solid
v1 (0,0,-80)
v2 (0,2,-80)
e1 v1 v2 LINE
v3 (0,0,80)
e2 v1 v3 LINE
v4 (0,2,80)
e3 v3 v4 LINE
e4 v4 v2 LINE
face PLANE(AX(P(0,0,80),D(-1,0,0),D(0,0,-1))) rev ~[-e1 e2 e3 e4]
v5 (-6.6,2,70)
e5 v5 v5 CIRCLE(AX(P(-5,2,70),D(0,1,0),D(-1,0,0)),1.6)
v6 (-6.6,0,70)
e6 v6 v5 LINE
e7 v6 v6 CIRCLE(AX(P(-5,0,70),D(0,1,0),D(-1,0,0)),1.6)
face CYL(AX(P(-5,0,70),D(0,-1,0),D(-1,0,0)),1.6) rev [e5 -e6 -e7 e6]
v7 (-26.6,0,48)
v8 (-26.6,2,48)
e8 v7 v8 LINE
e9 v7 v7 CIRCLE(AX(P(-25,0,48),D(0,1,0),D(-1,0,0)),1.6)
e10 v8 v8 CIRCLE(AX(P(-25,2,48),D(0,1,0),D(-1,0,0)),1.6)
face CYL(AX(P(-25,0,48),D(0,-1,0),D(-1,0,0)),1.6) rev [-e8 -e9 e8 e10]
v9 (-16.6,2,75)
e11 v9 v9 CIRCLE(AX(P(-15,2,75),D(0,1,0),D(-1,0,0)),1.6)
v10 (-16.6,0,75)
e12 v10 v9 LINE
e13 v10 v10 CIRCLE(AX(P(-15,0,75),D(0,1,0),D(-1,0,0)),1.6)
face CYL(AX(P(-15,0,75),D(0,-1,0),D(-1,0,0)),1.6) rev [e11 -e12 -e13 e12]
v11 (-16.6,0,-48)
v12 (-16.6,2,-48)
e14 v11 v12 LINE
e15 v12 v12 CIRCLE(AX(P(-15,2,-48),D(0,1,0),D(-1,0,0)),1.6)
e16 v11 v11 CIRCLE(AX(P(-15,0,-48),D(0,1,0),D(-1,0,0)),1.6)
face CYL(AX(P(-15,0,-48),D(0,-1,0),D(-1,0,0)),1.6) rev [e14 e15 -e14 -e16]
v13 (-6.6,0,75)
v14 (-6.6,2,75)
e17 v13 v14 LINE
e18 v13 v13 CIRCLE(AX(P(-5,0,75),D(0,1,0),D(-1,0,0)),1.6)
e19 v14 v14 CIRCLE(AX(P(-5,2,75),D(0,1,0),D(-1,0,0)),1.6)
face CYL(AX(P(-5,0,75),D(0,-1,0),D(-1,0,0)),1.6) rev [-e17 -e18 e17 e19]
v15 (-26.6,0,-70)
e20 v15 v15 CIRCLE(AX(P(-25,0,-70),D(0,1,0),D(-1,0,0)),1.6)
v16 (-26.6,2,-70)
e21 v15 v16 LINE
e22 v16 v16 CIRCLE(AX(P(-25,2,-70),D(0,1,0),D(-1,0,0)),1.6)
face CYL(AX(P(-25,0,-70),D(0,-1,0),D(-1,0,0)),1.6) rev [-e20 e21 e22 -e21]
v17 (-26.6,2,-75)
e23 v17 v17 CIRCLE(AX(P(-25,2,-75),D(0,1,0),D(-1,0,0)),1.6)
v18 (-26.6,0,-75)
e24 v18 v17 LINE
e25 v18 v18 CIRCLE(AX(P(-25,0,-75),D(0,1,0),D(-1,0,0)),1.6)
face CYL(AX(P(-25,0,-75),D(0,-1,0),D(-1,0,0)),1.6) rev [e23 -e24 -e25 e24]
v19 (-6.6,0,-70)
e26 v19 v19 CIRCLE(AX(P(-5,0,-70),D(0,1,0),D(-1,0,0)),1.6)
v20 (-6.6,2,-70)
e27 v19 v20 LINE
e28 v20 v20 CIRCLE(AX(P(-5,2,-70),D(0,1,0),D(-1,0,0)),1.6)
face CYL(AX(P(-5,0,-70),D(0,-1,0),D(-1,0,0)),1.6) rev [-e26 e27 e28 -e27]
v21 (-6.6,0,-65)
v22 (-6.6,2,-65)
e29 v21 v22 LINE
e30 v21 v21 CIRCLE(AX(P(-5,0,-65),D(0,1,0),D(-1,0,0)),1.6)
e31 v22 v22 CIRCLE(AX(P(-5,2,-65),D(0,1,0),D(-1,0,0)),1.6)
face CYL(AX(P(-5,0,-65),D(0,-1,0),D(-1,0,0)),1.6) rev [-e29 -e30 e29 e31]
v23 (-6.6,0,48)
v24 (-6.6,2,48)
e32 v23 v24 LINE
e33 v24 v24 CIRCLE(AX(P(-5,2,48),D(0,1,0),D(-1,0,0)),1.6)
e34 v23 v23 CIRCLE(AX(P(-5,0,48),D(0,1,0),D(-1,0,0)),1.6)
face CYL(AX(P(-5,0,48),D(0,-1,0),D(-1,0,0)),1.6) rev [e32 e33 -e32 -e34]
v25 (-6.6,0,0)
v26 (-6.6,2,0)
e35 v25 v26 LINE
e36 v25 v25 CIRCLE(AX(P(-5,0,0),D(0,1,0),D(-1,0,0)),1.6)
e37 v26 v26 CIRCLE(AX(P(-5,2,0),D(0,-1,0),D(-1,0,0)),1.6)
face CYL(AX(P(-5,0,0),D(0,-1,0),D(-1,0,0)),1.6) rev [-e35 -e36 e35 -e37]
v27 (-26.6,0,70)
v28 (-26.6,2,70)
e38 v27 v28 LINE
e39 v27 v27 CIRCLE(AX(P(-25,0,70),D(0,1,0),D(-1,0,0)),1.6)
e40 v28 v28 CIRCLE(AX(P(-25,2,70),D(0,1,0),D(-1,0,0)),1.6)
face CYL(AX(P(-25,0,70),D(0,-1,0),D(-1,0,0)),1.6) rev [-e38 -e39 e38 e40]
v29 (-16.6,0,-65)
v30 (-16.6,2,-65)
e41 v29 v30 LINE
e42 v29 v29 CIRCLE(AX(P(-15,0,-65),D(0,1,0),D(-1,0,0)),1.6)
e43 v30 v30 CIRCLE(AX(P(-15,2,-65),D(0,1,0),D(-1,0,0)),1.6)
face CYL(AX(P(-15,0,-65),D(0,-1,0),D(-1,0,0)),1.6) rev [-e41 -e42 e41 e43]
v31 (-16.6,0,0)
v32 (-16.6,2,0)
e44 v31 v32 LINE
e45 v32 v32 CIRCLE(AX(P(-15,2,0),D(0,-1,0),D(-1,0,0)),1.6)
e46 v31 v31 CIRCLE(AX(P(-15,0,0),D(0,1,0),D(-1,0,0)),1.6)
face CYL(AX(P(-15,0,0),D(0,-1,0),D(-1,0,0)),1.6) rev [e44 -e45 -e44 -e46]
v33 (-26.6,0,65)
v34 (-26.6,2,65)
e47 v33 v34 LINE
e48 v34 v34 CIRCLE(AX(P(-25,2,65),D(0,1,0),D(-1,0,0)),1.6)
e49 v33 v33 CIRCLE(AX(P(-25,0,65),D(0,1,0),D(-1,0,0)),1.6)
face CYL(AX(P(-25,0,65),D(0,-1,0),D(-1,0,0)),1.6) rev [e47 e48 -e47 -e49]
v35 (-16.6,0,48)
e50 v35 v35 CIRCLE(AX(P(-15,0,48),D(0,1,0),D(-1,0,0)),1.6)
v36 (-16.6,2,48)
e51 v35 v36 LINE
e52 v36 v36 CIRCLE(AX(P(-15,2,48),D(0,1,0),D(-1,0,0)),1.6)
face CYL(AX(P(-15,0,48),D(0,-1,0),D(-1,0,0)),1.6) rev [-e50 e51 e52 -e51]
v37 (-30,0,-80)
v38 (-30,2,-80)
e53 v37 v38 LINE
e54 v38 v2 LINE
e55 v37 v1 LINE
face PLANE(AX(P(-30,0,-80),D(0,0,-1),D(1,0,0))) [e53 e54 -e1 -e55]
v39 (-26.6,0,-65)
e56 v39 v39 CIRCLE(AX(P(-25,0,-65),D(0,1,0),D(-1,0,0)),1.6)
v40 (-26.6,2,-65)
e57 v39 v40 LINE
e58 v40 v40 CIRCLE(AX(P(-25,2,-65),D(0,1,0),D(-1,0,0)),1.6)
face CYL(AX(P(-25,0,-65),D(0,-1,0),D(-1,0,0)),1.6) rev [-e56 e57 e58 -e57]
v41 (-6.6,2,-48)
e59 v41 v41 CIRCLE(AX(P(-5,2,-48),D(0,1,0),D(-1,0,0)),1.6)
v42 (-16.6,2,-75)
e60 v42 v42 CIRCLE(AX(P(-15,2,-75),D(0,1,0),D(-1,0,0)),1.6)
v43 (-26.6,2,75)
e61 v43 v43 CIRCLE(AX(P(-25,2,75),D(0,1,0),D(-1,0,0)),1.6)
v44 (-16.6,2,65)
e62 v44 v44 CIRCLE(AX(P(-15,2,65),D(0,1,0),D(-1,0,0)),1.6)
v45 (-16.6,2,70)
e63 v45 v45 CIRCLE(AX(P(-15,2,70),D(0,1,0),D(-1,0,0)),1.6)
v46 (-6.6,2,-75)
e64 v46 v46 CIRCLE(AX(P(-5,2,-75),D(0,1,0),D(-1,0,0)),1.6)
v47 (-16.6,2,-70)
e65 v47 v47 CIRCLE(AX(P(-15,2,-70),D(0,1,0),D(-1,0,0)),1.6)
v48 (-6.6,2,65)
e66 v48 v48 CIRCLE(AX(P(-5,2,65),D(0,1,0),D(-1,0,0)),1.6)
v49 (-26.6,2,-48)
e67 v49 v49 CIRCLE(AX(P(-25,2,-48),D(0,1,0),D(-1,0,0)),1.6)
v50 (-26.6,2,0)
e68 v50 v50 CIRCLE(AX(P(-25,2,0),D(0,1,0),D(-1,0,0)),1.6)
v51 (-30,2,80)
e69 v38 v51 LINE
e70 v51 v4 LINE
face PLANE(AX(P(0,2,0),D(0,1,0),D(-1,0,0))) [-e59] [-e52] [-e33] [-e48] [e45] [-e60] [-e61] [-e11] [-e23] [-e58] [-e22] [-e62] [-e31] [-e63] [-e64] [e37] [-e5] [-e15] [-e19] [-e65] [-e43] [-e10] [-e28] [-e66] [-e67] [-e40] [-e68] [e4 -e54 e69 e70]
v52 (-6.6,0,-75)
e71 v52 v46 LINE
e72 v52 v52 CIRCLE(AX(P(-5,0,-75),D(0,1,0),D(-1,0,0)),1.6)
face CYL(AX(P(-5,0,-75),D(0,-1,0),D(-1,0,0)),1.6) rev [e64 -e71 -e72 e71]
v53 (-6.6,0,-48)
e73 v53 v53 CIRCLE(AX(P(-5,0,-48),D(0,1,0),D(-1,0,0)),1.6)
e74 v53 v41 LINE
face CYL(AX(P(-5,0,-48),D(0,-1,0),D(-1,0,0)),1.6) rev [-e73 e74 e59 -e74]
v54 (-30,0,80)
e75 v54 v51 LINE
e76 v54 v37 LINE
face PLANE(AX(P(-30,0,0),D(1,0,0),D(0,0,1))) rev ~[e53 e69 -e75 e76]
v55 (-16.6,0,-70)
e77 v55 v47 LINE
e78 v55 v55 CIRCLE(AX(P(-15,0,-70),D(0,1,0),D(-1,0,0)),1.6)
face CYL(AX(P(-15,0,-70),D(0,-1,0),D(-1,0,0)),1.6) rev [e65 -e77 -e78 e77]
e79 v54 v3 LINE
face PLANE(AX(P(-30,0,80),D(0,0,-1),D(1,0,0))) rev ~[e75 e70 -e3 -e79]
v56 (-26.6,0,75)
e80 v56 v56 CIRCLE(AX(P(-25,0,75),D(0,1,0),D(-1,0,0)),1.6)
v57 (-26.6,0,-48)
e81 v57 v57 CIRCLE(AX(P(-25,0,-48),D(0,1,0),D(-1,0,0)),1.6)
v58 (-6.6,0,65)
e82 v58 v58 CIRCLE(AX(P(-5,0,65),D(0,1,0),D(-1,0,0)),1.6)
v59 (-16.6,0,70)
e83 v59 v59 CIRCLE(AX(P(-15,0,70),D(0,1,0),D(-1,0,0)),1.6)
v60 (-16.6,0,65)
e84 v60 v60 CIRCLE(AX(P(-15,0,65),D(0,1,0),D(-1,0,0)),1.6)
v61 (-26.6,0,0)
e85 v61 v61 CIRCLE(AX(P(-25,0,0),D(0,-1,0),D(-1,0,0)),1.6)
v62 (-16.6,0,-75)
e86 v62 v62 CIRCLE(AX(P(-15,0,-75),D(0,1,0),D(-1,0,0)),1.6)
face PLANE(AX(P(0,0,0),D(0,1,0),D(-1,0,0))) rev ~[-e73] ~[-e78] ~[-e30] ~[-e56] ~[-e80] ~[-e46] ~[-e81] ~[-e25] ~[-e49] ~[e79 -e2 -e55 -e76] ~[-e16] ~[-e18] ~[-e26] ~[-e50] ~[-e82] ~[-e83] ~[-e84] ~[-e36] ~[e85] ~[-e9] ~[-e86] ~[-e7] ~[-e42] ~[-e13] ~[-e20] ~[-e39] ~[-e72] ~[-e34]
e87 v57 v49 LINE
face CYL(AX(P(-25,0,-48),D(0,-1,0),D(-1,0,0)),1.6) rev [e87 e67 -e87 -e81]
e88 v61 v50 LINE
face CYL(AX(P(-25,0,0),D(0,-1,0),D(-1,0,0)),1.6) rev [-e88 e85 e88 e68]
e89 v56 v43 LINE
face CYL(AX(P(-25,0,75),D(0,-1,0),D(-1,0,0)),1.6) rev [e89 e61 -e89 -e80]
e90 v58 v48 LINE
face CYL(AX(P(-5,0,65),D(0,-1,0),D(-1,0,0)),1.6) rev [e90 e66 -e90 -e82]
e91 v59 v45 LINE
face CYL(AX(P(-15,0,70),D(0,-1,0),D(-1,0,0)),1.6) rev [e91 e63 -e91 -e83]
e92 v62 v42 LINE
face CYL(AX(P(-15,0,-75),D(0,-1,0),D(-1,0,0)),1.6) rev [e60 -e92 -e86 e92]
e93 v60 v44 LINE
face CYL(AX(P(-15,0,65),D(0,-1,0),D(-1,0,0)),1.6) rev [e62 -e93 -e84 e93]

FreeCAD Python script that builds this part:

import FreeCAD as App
import Part
import Sketcher

V = App.Vector


def add_polygon(sketch, points):
    """Adds a closed chain of lines whose ends are joined by coincident constraints."""
    first, n = sketch.GeometryCount, len(points)
    for a, b in zip(points, points[1:] + points[:1]):
        sketch.addGeometry(Part.LineSegment(App.Vector(*a, 0), App.Vector(*b, 0)), False)
    for i in range(n):
        sketch.addConstraint(Sketcher.Constraint("Coincident", first + i, 2, first + (i + 1) % n, 1))

doc = App.newDocument("Part")
body = doc.addObject("PartDesign::Body", "Body")

sketch1 = body.newObject("Sketcher::SketchObject", "Sketch")
sketch1.AttachmentSupport = (doc.getObject("XZ_Plane"), [""])
sketch1.MapMode = "FlatFace"
add_polygon(sketch1, [(0, 80), (0, -80), (-30, -80), (-30, 80)])
sketch1.addGeometry(Part.Circle(V(-25, 0, 0), V(0, 0, 1), 1.6), False)
sketch1.addGeometry(Part.Circle(V(-15, 0, 0), V(0, 0, 1), 1.6), False)
sketch1.addGeometry(Part.Circle(V(-5, 0, 0), V(0, 0, 1), 1.6), False)
sketch1.addGeometry(Part.Circle(V(-5, 48, 0), V(0, 0, 1), 1.6), False)
sketch1.addGeometry(Part.Circle(V(-5, 65, 0), V(0, 0, 1), 1.6), False)
sketch1.addGeometry(Part.Circle(V(-5, 70, 0), V(0, 0, 1), 1.6), False)
sketch1.addGeometry(Part.Circle(V(-5, 75, 0), V(0, 0, 1), 1.6), False)
sketch1.addGeometry(Part.Circle(V(-15, 48, 0), V(0, 0, 1), 1.6), False)
sketch1.addGeometry(Part.Circle(V(-15, 65, 0), V(0, 0, 1), 1.6), False)
sketch1.addGeometry(Part.Circle(V(-15, 70, 0), V(0, 0, 1), 1.6), False)
sketch1.addGeometry(Part.Circle(V(-15, 75, 0), V(0, 0, 1), 1.6), False)
sketch1.addGeometry(Part.Circle(V(-25, 48, 0), V(0, 0, 1), 1.6), False)
sketch1.addGeometry(Part.Circle(V(-25, 65, 0), V(0, 0, 1), 1.6), False)
sketch1.addGeometry(Part.Circle(V(-25, 70, 0), V(0, 0, 1), 1.6), False)
sketch1.addGeometry(Part.Circle(V(-25, 75, 0), V(0, 0, 1), 1.6), False)
sketch1.addGeometry(Part.Circle(V(-25, -75, 0), V(0, 0, 1), 1.6), False)
sketch1.addGeometry(Part.Circle(V(-25, -70, 0), V(0, 0, 1), 1.6), False)
sketch1.addGeometry(Part.Circle(V(-25, -65, 0), V(0, 0, 1), 1.6), False)
sketch1.addGeometry(Part.Circle(V(-25, -48, 0), V(0, 0, 1), 1.6), False)
sketch1.addGeometry(Part.Circle(V(-5, -75, 0), V(0, 0, 1), 1.6), False)
sketch1.addGeometry(Part.Circle(V(-5, -70, 0), V(0, 0, 1), 1.6), False)
sketch1.addGeometry(Part.Circle(V(-5, -65, 0), V(0, 0, 1), 1.6), False)
sketch1.addGeometry(Part.Circle(V(-5, -48, 0), V(0, 0, 1), 1.6), False)
sketch1.addGeometry(Part.Circle(V(-15, -75, 0), V(0, 0, 1), 1.6), False)
sketch1.addGeometry(Part.Circle(V(-15, -70, 0), V(0, 0, 1), 1.6), False)
sketch1.addGeometry(Part.Circle(V(-15, -65, 0), V(0, 0, 1), 1.6), False)
sketch1.addGeometry(Part.Circle(V(-15, -48, 0), V(0, 0, 1), 1.6), False)
sketch1.addConstraint(Sketcher.Constraint("Vertical", 0))
sketch1.addConstraint(Sketcher.Constraint("Horizontal", 1))
sketch1.addConstraint(Sketcher.Constraint("Vertical", 2))
sketch1.addConstraint(Sketcher.Constraint("Horizontal", 3))
sketch1.addConstraint(Sketcher.Constraint("Equal", 4, 5))
sketch1.addConstraint(Sketcher.Constraint("Equal", 5, 6))
sketch1.addConstraint(Sketcher.Constraint("Equal", 6, 7))
sketch1.addConstraint(Sketcher.Constraint("Equal", 7, 8))
sketch1.addConstraint(Sketcher.Constraint("Equal", 8, 9))
sketch1.addConstraint(Sketcher.Constraint("Equal", 9, 10))
sketch1.addConstraint(Sketcher.Constraint("Equal", 10, 11))
sketch1.addConstraint(Sketcher.Constraint("Equal", 11, 12))
sketch1.addConstraint(Sketcher.Constraint("Equal", 12, 13))
sketch1.addConstraint(Sketcher.Constraint("Equal", 13, 14))
sketch1.addConstraint(Sketcher.Constraint("Equal", 14, 15))
sketch1.addConstraint(Sketcher.Constraint("Equal", 15, 16))
sketch1.addConstraint(Sketcher.Constraint("Equal", 16, 17))
sketch1.addConstraint(Sketcher.Constraint("Equal", 17, 18))
sketch1.addConstraint(Sketcher.Constraint("Equal", 18, 19))
sketch1.addConstraint(Sketcher.Constraint("Equal", 19, 20))
sketch1.addConstraint(Sketcher.Constraint("Equal", 20, 21))
sketch1.addConstraint(Sketcher.Constraint("Equal", 21, 22))
sketch1.addConstraint(Sketcher.Constraint("Equal", 22, 23))
sketch1.addConstraint(Sketcher.Constraint("Equal", 23, 24))
sketch1.addConstraint(Sketcher.Constraint("Equal", 24, 25))
sketch1.addConstraint(Sketcher.Constraint("Equal", 25, 26))
sketch1.addConstraint(Sketcher.Constraint("Equal", 26, 27))
sketch1.addConstraint(Sketcher.Constraint("Equal", 27, 28))
sketch1.addConstraint(Sketcher.Constraint("Equal", 28, 29))
sketch1.addConstraint(Sketcher.Constraint("Equal", 29, 30))
sketch1.addConstraint(Sketcher.Constraint("Symmetric", 0, 2, 3, 2, -1, 1))
sketch1.addConstraint(Sketcher.Constraint("Symmetric", 18, 3, 19, 3, -1))
sketch1.addConstraint(Sketcher.Constraint("Symmetric", 17, 3, 20, 3, -1))
sketch1.addConstraint(Sketcher.Constraint("Symmetric", 16, 3, 21, 3, -1))
sketch1.addConstraint(Sketcher.Constraint("Symmetric", 15, 3, 22, 3, -1))
sketch1.addConstraint(Sketcher.Constraint("Symmetric", 10, 3, 23, 3, -1))
sketch1.addConstraint(Sketcher.Constraint("Symmetric", 9, 3, 24, 3, -1))
sketch1.addConstraint(Sketcher.Constraint("Symmetric", 8, 3, 25, 3, -1))
sketch1.addConstraint(Sketcher.Constraint("Symmetric", 7, 3, 26, 3, -1))
sketch1.addConstraint(Sketcher.Constraint("Symmetric", 14, 3, 27, 3, -1))
sketch1.addConstraint(Sketcher.Constraint("Symmetric", 13, 3, 28, 3, -1))
sketch1.addConstraint(Sketcher.Constraint("Symmetric", 12, 3, 29, 3, -1))
sketch1.addConstraint(Sketcher.Constraint("Symmetric", 11, 3, 30, 3, -1))
sketch1.addConstraint(Sketcher.Constraint("PointOnObject", 4, 3, -1))
sketch1.addConstraint(Sketcher.Constraint("PointOnObject", 5, 3, -1))
sketch1.addConstraint(Sketcher.Constraint("PointOnObject", 6, 3, -1))
sketch1.addConstraint(Sketcher.Constraint("Horizontal", 7, 3, 11, 3))
sketch1.addConstraint(Sketcher.Constraint("Horizontal", 8, 3, 12, 3))
sketch1.addConstraint(Sketcher.Constraint("Horizontal", 9, 3, 13, 3))
sketch1.addConstraint(Sketcher.Constraint("Horizontal", 10, 3, 14, 3))
sketch1.addConstraint(Sketcher.Constraint("Horizontal", 11, 3, 15, 3))
sketch1.addConstraint(Sketcher.Constraint("Horizontal", 12, 3, 16, 3))
sketch1.addConstraint(Sketcher.Constraint("Horizontal", 13, 3, 17, 3))
sketch1.addConstraint(Sketcher.Constraint("Horizontal", 14, 3, 18, 3))
sketch1.addConstraint(Sketcher.Constraint("Vertical", 6, 3, 7, 3))
sketch1.addConstraint(Sketcher.Constraint("Vertical", 7, 3, 8, 3))
sketch1.addConstraint(Sketcher.Constraint("Vertical", 8, 3, 9, 3))
sketch1.addConstraint(Sketcher.Constraint("Vertical", 9, 3, 10, 3))
sketch1.addConstraint(Sketcher.Constraint("Vertical", 5, 3, 11, 3))
sketch1.addConstraint(Sketcher.Constraint("Vertical", 11, 3, 12, 3))
sketch1.addConstraint(Sketcher.Constraint("Vertical", 12, 3, 13, 3))
sketch1.addConstraint(Sketcher.Constraint("Vertical", 13, 3, 14, 3))
sketch1.addConstraint(Sketcher.Constraint("Vertical", 4, 3, 15, 3))
sketch1.addConstraint(Sketcher.Constraint("Vertical", 15, 3, 16, 3))
sketch1.addConstraint(Sketcher.Constraint("Vertical", 16, 3, 17, 3))
sketch1.addConstraint(Sketcher.Constraint("Vertical", 17, 3, 18, 3))
sketch1.addConstraint(Sketcher.Constraint("Diameter", 4, 3.2))
sketch1.addConstraint(Sketcher.Constraint("DistanceX", 1, 2, 1, 1, 30.0))
sketch1.addConstraint(Sketcher.Constraint("DistanceX", 6, 3, -1, 1, 5.0))
sketch1.addConstraint(Sketcher.Constraint("DistanceY", -1, 1, 7, 3, 48.0))
sketch1.addConstraint(Sketcher.Constraint("DistanceY", 0, 2, -1, 1, 80.0))
sketch1.addConstraint(Sketcher.Constraint("DistanceY", 8, 3, 9, 3, 5.0))
sketch1.addConstraint(Sketcher.Constraint("DistanceY", 9, 3, 10, 3, 5.0))
sketch1.addConstraint(Sketcher.Constraint("DistanceY", 0, 2, 23, 3, 5.0))
sketch1.addConstraint(Sketcher.Constraint("DistanceX", 1, 2, 19, 3, 5.0))
sketch1.addConstraint(Sketcher.Constraint("DistanceX", 5, 3, -1, 1, 15.0))
pad1 = body.newObject("PartDesign::Pad", "Pad")
pad1.Profile = sketch1
pad1.Length = 2
pad1.Reversed = True

doc.recompute()
